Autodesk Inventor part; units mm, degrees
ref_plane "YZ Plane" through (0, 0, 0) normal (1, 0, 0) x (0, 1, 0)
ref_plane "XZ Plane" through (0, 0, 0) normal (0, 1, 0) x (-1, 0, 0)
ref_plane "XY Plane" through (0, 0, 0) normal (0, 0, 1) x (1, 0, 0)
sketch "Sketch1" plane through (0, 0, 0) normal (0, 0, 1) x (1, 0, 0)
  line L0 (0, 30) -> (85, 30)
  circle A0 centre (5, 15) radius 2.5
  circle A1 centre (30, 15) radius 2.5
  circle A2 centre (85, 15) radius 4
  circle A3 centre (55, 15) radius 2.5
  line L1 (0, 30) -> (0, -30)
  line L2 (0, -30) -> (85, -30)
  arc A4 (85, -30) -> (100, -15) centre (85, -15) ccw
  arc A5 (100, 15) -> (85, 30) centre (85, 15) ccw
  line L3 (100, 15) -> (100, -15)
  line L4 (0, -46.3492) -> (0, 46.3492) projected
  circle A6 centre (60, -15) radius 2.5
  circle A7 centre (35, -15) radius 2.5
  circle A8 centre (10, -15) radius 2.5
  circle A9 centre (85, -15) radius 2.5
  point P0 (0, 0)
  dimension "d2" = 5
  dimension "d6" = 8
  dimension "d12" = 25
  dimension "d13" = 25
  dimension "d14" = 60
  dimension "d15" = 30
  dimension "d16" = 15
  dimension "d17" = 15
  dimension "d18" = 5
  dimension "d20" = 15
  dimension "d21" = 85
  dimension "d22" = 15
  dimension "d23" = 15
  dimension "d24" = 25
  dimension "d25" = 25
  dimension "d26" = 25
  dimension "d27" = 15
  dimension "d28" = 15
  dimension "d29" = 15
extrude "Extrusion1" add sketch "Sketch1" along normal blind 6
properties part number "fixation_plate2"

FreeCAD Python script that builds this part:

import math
import FreeCAD as App
import Part
import Sketcher

V = App.Vector
Q = App.Units.Quantity

doc = App.newDocument("Part")
body = doc.addObject("PartDesign::Body", "Body")

sketch1 = body.newObject("Sketcher::SketchObject", "Sketch")
sketch1.AttachmentSupport = (doc.getObject("XY_Plane"), [""])
sketch1.MapMode = "FlatFace"
sketch1.addGeometry(Part.LineSegment(V(85, 30, 0), V(0, 30, 0)), False)
sketch1.addGeometry(Part.LineSegment(V(0, 30, 0), V(0, -30, 0)), False)
sketch1.addGeometry(Part.LineSegment(V(0, -30, 0), V(85, -30, 0)), False)
sketch1.addGeometry(Part.ArcOfCircle(Part.Circle(V(85, -15, 0), V(0, 0, 1), 15), math.radians(-90), math.radians(0)), False)
sketch1.addGeometry(Part.LineSegment(V(100, -15, 0), V(100, 15, 0)), False)
sketch1.addGeometry(Part.ArcOfCircle(Part.Circle(V(85, 15, 0), V(0, 0, 1), 15), math.radians(0), math.radians(90)), False)
sketch1.addGeometry(Part.Circle(V(10, -15, 0), V(0, 0, 1), 2.5), False)
sketch1.addGeometry(Part.Circle(V(35, -15, 0), V(0, 0, 1), 2.5), False)
sketch1.addGeometry(Part.Circle(V(60, -15, 0), V(0, 0, 1), 2.5), False)
sketch1.addGeometry(Part.Circle(V(85, -15, 0), V(0, 0, 1), 2.5), False)
sketch1.addGeometry(Part.Circle(V(5, 15, 0), V(0, 0, 1), 2.5), False)
sketch1.addGeometry(Part.Circle(V(30, 15, 0), V(0, 0, 1), 2.5), False)
sketch1.addGeometry(Part.Circle(V(55, 15, 0), V(0, 0, 1), 2.5), False)
sketch1.addGeometry(Part.Circle(V(85, 15, 0), V(0, 0, 1), 4), False)
sketch1.addConstraint(Sketcher.Constraint("Coincident", 0, 2, 1, 1))
sketch1.addConstraint(Sketcher.Constraint("Coincident", 1, 2, 2, 1))
sketch1.addConstraint(Sketcher.Constraint("Tangent", 2, 2, 3, 1))
sketch1.addConstraint(Sketcher.Constraint("Tangent", 3, 2, 4, 1))
sketch1.addConstraint(Sketcher.Constraint("Tangent", 4, 2, 5, 1))
sketch1.addConstraint(Sketcher.Constraint("Tangent", 5, 2, 0, 1))
sketch1.addConstraint(Sketcher.Constraint("Horizontal", 0))
sketch1.addConstraint(Sketcher.Constraint("Vertical", 1))
sketch1.addConstraint(Sketcher.Constraint("Horizontal", 2))
sketch1.addConstraint(Sketcher.Constraint("Vertical", 4))
sketch1.addConstraint(Sketcher.Constraint("Coincident", 9, 3, 3, 3))
sketch1.addConstraint(Sketcher.Constraint("Coincident", 13, 3, 5, 3))
sketch1.addConstraint(Sketcher.Constraint("Equal", 3, 5))
sketch1.addConstraint(Sketcher.Constraint("Equal", 6, 7))
sketch1.addConstraint(Sketcher.Constraint("Equal", 7, 8))
sketch1.addConstraint(Sketcher.Constraint("Equal", 8, 9))
sketch1.addConstraint(Sketcher.Constraint("Equal", 9, 10))
sketch1.addConstraint(Sketcher.Constraint("Equal", 10, 11))
sketch1.addConstraint(Sketcher.Constraint("Equal", 11, 12))
sketch1.addConstraint(Sketcher.Constraint("Symmetric", 0, 2, 1, 2, -1, 1))
sketch1.addConstraint(Sketcher.Constraint("Horizontal", 3, 3, 6, 3))
sketch1.addConstraint(Sketcher.Constraint("Horizontal", 6, 3, 7, 3))
sketch1.addConstraint(Sketcher.Constraint("Horizontal", 7, 3, 8, 3))
sketch1.addConstraint(Sketcher.Constraint("Horizontal", 5, 3, 10, 3))
sketch1.addConstraint(Sketcher.Constraint("Horizontal", 10, 3, 11, 3))
sketch1.addConstraint(Sketcher.Constraint("Horizontal", 11, 3, 12, 3))
sketch1.addConstraint(Sketcher.Constraint("Diameter", 6, Q("5 mm")))
sketch1.addConstraint(Sketcher.Constraint("Diameter", 13, Q("8 mm")))
sketch1.addConstraint(Sketcher.Constraint("Radius", 3, Q("15 mm")))
sketch1.addConstraint(Sketcher.Constraint("DistanceX", 0, 2, 0, 1, Q("85 mm")))
sketch1.addConstraint(Sketcher.Constraint("DistanceY", 1, 2, 1, 1, Q("60 mm")))
sketch1.addConstraint(Sketcher.Constraint("DistanceX", -1, 1, 8, 3, Q("60 mm")))
sketch1.addConstraint(Sketcher.Constraint("DistanceX", -1, 1, 10, 3, Q("5 mm")))
sketch1.addConstraint(Sketcher.Constraint("DistanceX", -1, 1, 11, 3, Q("30 mm")))
sketch1.addConstraint(Sketcher.Constraint("DistanceX", 6, 3, 7, 3, Q("25 mm")))
sketch1.addConstraint(Sketcher.Constraint("DistanceX", 7, 3, 8, 3, Q("25 mm")))
sketch1.addConstraint(Sketcher.Constraint("DistanceX", 11, 3, 12, 3, Q("25 mm")))
pad1 = body.newObject("PartDesign::Pad", "Pad")
pad1.Profile = sketch1
pad1.Length = 6

doc.recompute()
